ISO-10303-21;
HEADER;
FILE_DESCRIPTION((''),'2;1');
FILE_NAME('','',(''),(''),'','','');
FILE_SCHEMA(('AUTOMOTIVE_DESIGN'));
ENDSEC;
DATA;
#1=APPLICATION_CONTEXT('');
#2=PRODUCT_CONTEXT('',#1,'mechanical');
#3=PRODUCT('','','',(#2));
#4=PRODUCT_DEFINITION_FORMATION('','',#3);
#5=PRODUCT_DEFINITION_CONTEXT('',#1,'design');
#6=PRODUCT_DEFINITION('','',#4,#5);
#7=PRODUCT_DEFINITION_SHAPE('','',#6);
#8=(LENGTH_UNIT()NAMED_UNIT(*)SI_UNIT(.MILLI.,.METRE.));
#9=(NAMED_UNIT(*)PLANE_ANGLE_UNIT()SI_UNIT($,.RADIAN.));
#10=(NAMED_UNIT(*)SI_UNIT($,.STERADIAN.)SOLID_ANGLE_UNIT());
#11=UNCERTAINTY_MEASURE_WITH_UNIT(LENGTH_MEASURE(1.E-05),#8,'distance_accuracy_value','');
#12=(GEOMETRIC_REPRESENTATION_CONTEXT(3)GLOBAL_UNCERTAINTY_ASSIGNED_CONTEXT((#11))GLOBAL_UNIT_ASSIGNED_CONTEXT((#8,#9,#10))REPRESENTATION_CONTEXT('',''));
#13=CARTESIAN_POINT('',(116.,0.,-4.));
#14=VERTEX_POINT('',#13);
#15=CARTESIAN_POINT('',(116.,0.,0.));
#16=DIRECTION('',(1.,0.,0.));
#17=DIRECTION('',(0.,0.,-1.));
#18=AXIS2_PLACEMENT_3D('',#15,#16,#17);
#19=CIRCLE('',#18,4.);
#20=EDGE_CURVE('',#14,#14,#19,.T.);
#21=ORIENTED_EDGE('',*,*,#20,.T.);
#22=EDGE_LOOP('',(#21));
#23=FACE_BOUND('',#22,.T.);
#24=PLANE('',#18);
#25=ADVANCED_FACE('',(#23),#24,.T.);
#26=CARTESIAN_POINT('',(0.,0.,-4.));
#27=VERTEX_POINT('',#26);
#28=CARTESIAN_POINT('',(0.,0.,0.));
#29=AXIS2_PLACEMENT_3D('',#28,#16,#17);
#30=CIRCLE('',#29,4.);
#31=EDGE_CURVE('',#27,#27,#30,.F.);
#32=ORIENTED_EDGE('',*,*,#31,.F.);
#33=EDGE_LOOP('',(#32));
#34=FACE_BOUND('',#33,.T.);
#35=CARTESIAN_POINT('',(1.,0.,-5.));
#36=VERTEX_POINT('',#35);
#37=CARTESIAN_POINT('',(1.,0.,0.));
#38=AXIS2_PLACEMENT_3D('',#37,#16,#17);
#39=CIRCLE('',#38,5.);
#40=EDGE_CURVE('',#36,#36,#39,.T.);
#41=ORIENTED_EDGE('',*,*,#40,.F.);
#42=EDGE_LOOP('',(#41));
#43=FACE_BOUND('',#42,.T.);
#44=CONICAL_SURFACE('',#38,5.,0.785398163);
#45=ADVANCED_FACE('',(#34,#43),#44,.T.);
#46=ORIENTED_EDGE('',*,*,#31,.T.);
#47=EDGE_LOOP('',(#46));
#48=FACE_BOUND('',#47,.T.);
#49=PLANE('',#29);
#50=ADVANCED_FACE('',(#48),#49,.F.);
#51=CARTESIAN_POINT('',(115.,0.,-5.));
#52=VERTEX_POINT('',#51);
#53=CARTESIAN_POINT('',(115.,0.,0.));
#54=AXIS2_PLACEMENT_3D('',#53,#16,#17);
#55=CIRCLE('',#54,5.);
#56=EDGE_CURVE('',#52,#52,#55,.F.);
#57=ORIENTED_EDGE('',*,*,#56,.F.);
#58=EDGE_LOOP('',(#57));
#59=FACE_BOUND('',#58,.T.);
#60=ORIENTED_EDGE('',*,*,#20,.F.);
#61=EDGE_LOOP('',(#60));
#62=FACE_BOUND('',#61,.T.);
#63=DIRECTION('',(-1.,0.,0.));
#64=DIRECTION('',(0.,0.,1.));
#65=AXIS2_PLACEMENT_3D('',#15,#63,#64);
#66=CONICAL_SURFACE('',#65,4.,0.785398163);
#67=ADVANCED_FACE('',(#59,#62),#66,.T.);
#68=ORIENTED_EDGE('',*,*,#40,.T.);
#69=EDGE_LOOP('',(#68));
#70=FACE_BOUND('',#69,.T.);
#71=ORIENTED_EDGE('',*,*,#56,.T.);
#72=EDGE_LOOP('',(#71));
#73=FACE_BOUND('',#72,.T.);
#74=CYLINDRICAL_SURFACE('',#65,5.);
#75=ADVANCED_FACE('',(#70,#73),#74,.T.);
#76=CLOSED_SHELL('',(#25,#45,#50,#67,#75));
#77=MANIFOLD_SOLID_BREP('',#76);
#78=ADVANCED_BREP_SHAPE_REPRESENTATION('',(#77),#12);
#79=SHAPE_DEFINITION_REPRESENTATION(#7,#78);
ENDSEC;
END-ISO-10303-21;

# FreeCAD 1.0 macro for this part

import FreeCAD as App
import Part
import Sketcher
from FreeCAD import Vector
Q = App.Units.Quantity


def edges_at(feature, points):
    """Names of the edges that pass closest to the given points."""
    edges = feature.Shape.Edges
    near = lambda p: min(range(len(edges)), key=lambda i: edges[i].distToShape(Part.Vertex(*p))[0])
    return sorted({f"Edge{near(p) + 1}" for p in points})

doc = App.newDocument("Part")
body = doc.addObject("PartDesign::Body", "Body")

# Sketch on YZ plane
sketch1 = body.newObject("Sketcher::SketchObject", "Sketch")
sketch1.AttachmentSupport = (doc.getObject("YZ_Plane"), [""])
sketch1.MapMode = "FlatFace"
sketch1.addGeometry(Part.Circle(Vector(0, 0, 0), Vector(0, 0, 1), 5), False)
sketch1.addConstraint(Sketcher.Constraint("Coincident", 0, 3, -1, 1))
sketch1.addConstraint(Sketcher.Constraint("Diameter", 0, Q("10 mm")))
pad1 = body.newObject("PartDesign::Pad", "Pad")
pad1.Profile = sketch1
pad1.Length = 116
doc.recompute()

chamfer = body.newObject("PartDesign::Chamfer", "Chamfer")
chamfer.Base = (pad1, edges_at(pad1, [(0, 0, 5), (116, 0, 5)]))
chamfer.Size = 1

doc.recompute()
